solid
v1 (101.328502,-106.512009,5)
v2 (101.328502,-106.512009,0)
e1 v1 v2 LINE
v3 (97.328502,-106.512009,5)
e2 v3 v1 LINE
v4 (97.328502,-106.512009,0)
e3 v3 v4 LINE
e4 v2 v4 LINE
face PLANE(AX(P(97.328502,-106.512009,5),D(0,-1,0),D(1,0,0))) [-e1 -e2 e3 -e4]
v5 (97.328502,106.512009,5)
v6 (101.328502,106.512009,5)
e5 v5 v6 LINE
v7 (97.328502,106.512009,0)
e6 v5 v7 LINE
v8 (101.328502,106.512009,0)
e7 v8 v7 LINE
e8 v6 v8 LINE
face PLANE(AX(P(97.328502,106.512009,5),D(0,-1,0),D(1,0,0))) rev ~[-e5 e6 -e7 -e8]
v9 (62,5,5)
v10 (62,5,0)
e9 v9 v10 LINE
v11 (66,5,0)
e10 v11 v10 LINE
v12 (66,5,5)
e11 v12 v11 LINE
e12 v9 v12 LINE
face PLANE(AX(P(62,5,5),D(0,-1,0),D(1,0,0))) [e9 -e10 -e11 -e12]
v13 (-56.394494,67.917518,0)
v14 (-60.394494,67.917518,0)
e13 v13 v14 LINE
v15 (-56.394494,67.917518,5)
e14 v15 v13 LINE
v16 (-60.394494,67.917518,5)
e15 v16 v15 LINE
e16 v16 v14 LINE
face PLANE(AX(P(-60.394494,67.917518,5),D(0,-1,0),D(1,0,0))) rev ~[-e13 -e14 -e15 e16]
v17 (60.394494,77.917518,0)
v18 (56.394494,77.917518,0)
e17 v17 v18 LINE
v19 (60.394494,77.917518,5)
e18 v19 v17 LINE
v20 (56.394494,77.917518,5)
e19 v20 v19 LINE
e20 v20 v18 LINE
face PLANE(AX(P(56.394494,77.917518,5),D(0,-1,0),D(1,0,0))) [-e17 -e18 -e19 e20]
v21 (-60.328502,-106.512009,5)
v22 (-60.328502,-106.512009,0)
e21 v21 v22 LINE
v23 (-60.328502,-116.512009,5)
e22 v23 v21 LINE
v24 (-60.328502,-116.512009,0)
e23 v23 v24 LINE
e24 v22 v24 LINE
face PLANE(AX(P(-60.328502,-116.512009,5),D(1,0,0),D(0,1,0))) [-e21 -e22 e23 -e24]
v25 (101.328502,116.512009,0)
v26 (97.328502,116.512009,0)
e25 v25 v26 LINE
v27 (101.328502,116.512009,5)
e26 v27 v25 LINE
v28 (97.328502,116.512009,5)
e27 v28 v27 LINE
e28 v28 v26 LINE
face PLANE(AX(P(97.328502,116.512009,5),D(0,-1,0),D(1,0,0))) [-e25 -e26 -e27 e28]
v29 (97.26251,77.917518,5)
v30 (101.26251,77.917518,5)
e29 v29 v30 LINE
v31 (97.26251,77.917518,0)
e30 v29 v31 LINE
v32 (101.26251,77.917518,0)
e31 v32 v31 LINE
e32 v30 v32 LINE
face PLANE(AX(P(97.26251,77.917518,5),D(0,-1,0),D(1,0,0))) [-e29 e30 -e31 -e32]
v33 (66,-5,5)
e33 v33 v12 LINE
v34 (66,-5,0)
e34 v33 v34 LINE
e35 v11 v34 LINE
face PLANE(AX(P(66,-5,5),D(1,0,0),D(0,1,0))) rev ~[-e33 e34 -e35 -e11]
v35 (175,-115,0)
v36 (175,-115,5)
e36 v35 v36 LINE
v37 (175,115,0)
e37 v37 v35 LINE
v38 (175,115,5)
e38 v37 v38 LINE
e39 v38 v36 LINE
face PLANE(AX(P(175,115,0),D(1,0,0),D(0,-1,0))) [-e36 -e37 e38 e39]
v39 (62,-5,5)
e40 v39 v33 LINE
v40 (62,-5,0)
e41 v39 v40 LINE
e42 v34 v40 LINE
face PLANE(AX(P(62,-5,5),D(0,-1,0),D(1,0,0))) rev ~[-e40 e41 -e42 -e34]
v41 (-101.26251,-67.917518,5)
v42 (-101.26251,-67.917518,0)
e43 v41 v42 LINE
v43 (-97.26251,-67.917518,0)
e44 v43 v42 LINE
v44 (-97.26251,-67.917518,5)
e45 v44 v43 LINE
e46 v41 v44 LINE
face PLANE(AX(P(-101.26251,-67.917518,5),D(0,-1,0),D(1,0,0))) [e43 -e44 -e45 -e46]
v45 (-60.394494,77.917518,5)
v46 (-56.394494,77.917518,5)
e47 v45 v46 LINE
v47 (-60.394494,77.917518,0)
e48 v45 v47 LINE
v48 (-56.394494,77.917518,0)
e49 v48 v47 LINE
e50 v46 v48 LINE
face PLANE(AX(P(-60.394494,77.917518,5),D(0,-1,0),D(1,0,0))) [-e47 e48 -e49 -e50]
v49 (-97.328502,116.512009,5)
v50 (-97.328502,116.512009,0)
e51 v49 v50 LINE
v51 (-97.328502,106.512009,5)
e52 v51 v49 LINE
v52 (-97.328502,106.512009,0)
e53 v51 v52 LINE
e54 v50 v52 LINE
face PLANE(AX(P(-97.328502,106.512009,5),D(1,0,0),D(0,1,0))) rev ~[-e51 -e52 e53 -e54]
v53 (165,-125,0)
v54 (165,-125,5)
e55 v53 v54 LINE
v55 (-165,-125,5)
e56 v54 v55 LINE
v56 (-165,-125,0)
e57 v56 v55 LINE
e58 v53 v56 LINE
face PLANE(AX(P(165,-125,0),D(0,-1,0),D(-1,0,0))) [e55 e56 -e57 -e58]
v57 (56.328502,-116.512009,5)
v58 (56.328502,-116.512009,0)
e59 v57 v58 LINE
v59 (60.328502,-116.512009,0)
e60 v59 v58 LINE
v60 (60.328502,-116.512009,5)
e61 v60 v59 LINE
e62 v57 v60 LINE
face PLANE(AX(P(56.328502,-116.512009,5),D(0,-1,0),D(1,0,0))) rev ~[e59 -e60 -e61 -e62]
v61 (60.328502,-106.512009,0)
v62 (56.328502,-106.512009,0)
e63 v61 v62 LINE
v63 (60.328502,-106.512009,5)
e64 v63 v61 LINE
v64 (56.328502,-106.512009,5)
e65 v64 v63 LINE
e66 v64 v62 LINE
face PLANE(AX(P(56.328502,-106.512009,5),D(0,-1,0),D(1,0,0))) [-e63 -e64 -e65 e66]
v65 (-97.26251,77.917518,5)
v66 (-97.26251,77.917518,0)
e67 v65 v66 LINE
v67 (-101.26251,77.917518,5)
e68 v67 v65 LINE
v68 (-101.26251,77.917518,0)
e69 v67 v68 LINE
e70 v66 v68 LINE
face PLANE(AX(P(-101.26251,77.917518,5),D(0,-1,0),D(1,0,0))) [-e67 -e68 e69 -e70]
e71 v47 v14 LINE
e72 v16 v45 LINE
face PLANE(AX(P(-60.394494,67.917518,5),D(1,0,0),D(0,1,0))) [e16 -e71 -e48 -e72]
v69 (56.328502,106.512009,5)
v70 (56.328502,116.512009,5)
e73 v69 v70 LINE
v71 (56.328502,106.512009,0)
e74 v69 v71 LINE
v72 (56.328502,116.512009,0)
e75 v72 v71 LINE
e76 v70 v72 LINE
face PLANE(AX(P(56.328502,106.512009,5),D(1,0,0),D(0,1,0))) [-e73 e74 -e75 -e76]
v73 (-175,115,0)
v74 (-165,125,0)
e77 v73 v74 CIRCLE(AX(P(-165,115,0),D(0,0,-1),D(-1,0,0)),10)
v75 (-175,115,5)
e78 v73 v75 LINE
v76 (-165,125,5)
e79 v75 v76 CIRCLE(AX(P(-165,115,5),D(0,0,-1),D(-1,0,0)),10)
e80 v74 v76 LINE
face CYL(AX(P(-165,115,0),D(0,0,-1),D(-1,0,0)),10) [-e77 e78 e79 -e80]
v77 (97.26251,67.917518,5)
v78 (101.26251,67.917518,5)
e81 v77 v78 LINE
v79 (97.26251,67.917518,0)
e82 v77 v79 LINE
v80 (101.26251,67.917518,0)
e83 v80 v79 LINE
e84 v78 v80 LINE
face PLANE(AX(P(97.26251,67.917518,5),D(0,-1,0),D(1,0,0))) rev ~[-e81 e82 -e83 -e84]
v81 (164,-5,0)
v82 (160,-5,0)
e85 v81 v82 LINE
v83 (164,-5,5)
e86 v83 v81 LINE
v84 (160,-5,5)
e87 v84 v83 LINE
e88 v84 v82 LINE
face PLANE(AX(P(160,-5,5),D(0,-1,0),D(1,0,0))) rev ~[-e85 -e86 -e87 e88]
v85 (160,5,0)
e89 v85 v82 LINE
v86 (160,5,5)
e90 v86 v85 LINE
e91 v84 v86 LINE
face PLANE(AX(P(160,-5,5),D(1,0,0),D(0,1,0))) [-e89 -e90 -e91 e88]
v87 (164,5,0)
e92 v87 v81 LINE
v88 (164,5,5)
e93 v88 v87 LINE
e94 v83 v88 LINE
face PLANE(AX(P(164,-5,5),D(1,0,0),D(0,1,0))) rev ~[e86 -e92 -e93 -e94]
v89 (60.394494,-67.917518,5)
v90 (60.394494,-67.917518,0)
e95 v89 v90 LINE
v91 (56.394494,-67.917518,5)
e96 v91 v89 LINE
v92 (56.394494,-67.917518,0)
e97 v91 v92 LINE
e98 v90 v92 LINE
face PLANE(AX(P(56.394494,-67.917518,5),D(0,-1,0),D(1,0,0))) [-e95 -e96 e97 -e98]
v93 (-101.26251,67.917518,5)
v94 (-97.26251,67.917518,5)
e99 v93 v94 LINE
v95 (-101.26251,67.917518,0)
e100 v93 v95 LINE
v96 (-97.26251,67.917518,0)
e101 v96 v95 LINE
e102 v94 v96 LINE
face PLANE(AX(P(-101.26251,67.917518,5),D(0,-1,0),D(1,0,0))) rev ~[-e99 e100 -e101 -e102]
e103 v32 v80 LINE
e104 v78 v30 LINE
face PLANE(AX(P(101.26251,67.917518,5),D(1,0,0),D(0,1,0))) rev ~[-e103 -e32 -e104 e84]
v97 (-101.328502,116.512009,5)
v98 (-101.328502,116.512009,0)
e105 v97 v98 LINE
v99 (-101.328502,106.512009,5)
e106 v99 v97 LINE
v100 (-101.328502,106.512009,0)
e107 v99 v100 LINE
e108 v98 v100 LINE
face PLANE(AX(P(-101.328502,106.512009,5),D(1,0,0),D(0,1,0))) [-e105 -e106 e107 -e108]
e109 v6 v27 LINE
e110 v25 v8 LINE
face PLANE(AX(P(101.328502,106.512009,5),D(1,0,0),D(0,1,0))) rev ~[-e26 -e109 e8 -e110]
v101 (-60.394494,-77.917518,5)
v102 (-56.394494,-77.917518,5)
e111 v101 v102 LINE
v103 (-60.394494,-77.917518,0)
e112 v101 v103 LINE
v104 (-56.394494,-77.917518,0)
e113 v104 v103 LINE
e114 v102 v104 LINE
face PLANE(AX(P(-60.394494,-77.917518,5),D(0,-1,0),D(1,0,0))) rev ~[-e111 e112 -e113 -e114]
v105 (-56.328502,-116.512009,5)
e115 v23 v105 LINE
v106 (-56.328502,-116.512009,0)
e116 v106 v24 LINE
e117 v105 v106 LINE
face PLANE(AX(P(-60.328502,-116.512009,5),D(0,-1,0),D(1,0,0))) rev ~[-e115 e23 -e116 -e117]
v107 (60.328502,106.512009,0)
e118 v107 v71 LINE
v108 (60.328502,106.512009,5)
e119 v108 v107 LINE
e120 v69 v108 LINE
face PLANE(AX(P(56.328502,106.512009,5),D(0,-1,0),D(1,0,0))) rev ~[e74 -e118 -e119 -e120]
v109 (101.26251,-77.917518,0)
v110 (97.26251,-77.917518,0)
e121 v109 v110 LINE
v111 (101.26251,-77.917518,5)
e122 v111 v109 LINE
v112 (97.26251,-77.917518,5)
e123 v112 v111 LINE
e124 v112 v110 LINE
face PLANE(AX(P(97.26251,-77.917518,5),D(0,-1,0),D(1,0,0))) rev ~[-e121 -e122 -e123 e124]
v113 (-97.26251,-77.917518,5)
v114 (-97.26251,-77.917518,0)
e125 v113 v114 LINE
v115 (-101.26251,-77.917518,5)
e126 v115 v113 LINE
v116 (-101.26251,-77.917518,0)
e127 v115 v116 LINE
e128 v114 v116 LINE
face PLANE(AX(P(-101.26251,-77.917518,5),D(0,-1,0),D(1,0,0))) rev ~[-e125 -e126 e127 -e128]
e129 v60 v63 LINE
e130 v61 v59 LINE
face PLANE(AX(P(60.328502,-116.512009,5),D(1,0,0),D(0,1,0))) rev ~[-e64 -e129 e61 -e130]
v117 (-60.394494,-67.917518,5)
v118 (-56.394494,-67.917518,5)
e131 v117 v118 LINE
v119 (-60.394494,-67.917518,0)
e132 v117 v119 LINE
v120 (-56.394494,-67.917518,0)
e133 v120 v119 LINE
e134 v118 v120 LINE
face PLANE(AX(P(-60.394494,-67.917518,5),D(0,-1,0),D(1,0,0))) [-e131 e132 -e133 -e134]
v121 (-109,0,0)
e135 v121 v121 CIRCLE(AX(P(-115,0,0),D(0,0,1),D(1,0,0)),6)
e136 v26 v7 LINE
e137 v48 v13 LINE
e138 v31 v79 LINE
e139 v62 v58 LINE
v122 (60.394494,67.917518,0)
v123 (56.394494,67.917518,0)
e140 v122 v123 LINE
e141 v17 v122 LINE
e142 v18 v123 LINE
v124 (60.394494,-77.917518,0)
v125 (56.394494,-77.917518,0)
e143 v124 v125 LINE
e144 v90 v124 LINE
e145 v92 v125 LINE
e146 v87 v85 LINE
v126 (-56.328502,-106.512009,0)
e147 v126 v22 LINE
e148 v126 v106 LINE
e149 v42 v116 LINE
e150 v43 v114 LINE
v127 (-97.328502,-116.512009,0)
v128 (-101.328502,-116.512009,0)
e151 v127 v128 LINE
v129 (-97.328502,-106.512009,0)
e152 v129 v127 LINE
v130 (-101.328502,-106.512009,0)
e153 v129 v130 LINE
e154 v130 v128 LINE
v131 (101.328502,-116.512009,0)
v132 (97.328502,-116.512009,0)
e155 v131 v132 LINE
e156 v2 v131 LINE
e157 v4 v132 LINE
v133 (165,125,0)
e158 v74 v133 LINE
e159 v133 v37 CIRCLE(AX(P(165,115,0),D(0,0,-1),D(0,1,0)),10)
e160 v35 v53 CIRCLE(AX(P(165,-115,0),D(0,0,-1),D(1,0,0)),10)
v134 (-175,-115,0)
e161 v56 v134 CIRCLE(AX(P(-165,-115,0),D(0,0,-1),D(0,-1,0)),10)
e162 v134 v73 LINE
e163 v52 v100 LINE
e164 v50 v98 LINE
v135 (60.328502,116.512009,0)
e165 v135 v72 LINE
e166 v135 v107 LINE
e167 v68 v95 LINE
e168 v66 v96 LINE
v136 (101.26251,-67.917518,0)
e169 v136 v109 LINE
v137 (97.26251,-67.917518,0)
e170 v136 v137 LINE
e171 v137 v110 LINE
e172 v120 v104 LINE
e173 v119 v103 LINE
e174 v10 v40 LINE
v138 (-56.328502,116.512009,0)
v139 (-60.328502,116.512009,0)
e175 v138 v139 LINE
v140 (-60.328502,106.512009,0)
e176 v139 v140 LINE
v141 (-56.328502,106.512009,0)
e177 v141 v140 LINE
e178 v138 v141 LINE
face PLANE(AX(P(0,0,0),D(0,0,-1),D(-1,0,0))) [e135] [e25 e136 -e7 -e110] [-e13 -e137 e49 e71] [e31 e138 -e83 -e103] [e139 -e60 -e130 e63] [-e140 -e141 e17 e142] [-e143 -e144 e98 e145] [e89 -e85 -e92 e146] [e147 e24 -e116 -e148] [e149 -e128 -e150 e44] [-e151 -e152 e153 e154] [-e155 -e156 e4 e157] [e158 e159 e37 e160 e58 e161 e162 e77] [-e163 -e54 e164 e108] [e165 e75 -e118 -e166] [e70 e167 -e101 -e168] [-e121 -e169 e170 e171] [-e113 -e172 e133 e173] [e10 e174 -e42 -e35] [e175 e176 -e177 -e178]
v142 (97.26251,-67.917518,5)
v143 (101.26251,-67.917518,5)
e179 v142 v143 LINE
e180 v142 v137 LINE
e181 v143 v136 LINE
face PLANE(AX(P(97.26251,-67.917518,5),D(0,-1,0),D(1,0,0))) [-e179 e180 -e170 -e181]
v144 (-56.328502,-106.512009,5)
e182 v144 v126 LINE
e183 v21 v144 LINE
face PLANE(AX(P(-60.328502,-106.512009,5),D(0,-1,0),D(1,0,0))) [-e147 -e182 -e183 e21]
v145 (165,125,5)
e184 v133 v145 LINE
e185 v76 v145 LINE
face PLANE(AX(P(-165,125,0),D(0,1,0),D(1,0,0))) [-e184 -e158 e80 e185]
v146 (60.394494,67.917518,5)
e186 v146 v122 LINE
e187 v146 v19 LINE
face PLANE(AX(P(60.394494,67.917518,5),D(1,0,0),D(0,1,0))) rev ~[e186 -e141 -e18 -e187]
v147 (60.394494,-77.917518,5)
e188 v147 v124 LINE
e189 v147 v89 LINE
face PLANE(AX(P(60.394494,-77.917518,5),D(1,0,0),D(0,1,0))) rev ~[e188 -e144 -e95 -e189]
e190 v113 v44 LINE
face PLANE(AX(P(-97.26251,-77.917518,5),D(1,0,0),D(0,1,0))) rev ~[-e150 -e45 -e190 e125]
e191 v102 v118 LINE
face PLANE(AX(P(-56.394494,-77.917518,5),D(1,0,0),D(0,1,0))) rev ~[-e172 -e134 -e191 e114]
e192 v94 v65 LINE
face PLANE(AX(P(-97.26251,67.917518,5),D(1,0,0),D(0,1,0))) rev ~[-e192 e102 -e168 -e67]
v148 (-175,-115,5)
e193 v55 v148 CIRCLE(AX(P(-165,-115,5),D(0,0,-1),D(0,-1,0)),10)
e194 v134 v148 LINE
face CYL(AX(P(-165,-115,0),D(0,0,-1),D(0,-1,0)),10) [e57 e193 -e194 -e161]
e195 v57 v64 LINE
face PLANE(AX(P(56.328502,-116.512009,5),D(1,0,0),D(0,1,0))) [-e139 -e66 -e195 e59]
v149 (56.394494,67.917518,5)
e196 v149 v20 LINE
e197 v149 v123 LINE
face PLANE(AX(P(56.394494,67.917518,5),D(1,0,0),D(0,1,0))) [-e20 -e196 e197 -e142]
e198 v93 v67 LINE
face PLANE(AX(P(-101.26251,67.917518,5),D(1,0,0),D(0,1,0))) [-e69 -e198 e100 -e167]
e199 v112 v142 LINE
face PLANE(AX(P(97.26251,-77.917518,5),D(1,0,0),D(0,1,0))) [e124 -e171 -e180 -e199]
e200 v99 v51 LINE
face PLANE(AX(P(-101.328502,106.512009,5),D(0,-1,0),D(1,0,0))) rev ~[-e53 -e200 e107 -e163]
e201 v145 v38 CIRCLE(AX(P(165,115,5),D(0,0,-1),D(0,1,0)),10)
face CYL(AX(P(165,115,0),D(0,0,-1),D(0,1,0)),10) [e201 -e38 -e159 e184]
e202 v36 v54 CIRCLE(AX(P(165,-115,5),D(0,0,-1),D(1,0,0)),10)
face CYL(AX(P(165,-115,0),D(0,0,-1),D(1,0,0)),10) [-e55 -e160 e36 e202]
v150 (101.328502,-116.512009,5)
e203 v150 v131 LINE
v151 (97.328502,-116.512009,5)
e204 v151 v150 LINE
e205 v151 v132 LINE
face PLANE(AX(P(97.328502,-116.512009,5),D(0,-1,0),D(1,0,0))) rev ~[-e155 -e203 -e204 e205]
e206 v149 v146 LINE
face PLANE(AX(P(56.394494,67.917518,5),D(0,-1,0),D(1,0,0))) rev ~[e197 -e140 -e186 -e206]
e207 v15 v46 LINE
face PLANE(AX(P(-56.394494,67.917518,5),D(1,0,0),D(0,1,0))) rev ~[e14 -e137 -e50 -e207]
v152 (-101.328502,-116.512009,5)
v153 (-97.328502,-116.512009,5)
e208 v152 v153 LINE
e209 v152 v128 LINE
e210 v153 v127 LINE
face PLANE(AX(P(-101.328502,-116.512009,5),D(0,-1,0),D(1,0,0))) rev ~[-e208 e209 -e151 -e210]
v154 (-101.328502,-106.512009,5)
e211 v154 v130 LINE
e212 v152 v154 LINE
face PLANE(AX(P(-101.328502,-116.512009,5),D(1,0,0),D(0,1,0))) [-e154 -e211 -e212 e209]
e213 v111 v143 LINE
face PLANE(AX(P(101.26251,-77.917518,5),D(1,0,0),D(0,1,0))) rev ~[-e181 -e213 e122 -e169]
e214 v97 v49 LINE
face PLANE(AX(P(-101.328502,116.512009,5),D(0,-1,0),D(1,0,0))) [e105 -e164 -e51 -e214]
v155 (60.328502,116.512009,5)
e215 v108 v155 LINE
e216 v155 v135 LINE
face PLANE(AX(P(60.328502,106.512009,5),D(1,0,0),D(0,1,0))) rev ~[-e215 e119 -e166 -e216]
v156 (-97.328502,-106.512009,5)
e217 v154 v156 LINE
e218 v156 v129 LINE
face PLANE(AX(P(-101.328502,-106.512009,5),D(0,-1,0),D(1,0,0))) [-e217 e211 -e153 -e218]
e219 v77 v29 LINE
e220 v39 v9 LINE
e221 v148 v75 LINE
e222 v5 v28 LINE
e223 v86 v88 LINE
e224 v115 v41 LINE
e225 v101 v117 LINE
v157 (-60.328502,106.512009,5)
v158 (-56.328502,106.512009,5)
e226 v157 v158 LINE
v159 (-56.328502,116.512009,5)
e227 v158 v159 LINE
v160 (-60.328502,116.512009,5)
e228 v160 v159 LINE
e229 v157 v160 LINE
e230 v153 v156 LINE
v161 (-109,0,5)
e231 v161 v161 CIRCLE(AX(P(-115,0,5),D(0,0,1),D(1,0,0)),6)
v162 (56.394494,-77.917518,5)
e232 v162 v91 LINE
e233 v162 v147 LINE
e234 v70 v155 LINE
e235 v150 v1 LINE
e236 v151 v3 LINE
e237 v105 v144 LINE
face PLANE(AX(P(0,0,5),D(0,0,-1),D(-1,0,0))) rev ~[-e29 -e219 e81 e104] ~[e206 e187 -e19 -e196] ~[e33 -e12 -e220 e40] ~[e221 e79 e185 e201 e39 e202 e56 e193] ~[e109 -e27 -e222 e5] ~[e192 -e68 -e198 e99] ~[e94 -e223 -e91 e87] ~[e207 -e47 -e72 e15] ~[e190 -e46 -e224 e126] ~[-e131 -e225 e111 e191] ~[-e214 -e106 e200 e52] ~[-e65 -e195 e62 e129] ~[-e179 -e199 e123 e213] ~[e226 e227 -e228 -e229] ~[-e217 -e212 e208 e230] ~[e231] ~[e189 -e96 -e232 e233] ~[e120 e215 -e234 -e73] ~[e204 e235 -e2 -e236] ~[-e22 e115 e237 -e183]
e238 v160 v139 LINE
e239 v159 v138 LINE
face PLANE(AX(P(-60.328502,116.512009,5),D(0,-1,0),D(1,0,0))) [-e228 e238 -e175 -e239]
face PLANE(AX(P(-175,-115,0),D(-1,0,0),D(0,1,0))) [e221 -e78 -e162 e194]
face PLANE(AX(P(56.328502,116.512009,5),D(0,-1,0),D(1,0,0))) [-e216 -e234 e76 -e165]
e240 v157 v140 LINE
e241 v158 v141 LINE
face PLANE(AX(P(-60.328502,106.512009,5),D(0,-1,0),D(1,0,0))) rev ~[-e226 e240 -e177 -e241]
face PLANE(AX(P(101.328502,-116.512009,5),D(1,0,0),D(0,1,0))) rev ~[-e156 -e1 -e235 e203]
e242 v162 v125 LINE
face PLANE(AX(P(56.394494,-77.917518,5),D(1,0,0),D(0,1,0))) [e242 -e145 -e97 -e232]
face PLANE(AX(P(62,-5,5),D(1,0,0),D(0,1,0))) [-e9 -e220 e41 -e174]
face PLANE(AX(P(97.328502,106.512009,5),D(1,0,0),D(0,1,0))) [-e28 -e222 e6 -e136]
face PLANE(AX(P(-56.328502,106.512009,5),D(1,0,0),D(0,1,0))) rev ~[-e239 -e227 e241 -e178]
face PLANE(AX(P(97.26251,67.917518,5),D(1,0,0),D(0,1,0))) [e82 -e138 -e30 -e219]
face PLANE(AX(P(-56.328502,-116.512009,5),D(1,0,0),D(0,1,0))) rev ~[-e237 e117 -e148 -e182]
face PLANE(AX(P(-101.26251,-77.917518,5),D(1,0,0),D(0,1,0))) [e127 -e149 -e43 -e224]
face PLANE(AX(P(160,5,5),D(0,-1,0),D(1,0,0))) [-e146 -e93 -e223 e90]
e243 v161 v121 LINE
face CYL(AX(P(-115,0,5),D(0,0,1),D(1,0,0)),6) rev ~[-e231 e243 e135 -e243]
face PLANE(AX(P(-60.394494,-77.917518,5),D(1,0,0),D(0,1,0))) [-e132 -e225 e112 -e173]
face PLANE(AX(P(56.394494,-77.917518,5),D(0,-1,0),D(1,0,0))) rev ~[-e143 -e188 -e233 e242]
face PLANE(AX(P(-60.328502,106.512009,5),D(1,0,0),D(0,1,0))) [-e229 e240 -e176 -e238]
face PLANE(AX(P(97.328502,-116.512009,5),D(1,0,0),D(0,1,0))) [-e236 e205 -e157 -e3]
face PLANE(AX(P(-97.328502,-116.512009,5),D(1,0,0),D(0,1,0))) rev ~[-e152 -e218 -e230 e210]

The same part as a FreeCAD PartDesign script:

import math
import FreeCAD as App
import Part
import Sketcher

doc = App.newDocument("Part")
body = doc.addObject("PartDesign::Body", "Body")

# Sketch on XY plane
sketch1 = body.newObject("Sketcher::SketchObject", "Sketch")
sketch1.AttachmentSupport = (doc.getObject("XY_Plane"), [""])
sketch1.MapMode = "FlatFace"
sketch1.addGeometry(Part.LineSegment(App.Vector(165, 125, 0), App.Vector(-165, 125, 0)), False)
sketch1.addGeometry(Part.ArcOfCircle(Part.Circle(App.Vector(-165, 115, 0), App.Vector(0, 0, 1), 10), math.radians(90), math.radians(180)), False)
sketch1.addGeometry(Part.LineSegment(App.Vector(-175, 115, 0), App.Vector(-175, -115, 0)), False)
sketch1.addGeometry(Part.ArcOfCircle(Part.Circle(App.Vector(-165, -115, 0), App.Vector(0, 0, 1), 10), math.radians(180), math.radians(270)), False)
sketch1.addGeometry(Part.LineSegment(App.Vector(-165, -125, 0), App.Vector(165, -125, 0)), False)
sketch1.addGeometry(Part.ArcOfCircle(Part.Circle(App.Vector(165, -115, 0), App.Vector(0, 0, 1), 10), math.radians(-90), math.radians(0)), False)
sketch1.addGeometry(Part.LineSegment(App.Vector(175, -115, 0), App.Vector(175, 115, 0)), False)
sketch1.addGeometry(Part.ArcOfCircle(Part.Circle(App.Vector(165, 115, 0), App.Vector(0, 0, 1), 10), math.radians(0), math.radians(90)), False)
sketch1.addConstraint(Sketcher.Constraint("Tangent", 0, 2, 1, 1))
sketch1.addConstraint(Sketcher.Constraint("Tangent", 1, 2, 2, 1))
sketch1.addConstraint(Sketcher.Constraint("Tangent", 2, 2, 3, 1))
sketch1.addConstraint(Sketcher.Constraint("Tangent", 3, 2, 4, 1))
sketch1.addConstraint(Sketcher.Constraint("Tangent", 4, 2, 5, 1))
sketch1.addConstraint(Sketcher.Constraint("Tangent", 5, 2, 6, 1))
sketch1.addConstraint(Sketcher.Constraint("Tangent", 6, 2, 7, 1))
sketch1.addConstraint(Sketcher.Constraint("Tangent", 7, 2, 0, 1))
sketch1.addConstraint(Sketcher.Constraint("Horizontal", 0))
sketch1.addConstraint(Sketcher.Constraint("Vertical", 2))
sketch1.addConstraint(Sketcher.Constraint("Horizontal", 4))
sketch1.addConstraint(Sketcher.Constraint("Vertical", 6))
sketch1.addConstraint(Sketcher.Constraint("Equal", 1, 3))
sketch1.addConstraint(Sketcher.Constraint("Equal", 3, 5))
sketch1.addConstraint(Sketcher.Constraint("Equal", 5, 7))
sketch1.addConstraint(Sketcher.Constraint("Symmetric", 1, 3, 5, 3, -1, 1))
sketch1.addConstraint(Sketcher.Constraint("Radius", 1, 10.0))
sketch1.addConstraint(Sketcher.Constraint("DistanceX", 0, 2, 0, 1, 330.0))
sketch1.addConstraint(Sketcher.Constraint("DistanceY", 2, 2, 2, 1, 230.0))
pad1 = body.newObject("PartDesign::Pad", "Pad")
pad1.Profile = sketch1
pad1.Length = 5

# Sketch on XY plane
sketch2 = body.newObject("Sketcher::SketchObject", "Sketch001")
sketch2.AttachmentSupport = (doc.getObject("XY_Plane"), [""])
sketch2.MapMode = "FlatFace"
sketch2.AttachmentOffset = App.Placement(App.Vector(0, 0, 5), App.Rotation())
sketch2.addGeometry(Part.LineSegment(App.Vector(97.328502, 116.512009, 0), App.Vector(97.328502, 106.512009, 0)), False)
sketch2.addGeometry(Part.LineSegment(App.Vector(97.328502, 106.512009, 0), App.Vector(101.328502, 106.512009, 0)), False)
sketch2.addGeometry(Part.LineSegment(App.Vector(101.328502, 106.512009, 0), App.Vector(101.328502, 116.512009, 0)), False)
sketch2.addGeometry(Part.LineSegment(App.Vector(101.328502, 116.512009, 0), App.Vector(97.328502, 116.512009, 0)), False)
sketch2.addGeometry(Part.LineSegment(App.Vector(97.26251, 77.917518, 0), App.Vector(97.26251, 67.917518, 0)), False)
sketch2.addGeometry(Part.LineSegment(App.Vector(97.26251, 67.917518, 0), App.Vector(101.26251, 67.917518, 0)), False)
sketch2.addGeometry(Part.LineSegment(App.Vector(101.26251, 67.917518, 0), App.Vector(101.26251, 77.917518, 0)), False)
sketch2.addGeometry(Part.LineSegment(App.Vector(101.26251, 77.917518, 0), App.Vector(97.26251, 77.917518, 0)), False)
sketch2.addGeometry(Part.LineSegment(App.Vector(56.394494, 77.917518, 0), App.Vector(56.394494, 67.917518, 0)), False)
sketch2.addGeometry(Part.LineSegment(App.Vector(56.394494, 67.917518, 0), App.Vector(60.394494, 67.917518, 0)), False)
sketch2.addGeometry(Part.LineSegment(App.Vector(60.394494, 67.917518, 0), App.Vector(60.394494, 77.917518, 0)), False)
sketch2.addGeometry(Part.LineSegment(App.Vector(60.394494, 77.917518, 0), App.Vector(56.394494, 77.917518, 0)), False)
sketch2.addGeometry(Part.LineSegment(App.Vector(56.328502, 116.512009, 0), App.Vector(56.328502, 106.512009, 0)), False)
sketch2.addGeometry(Part.LineSegment(App.Vector(56.328502, 106.512009, 0), App.Vector(60.328502, 106.512009, 0)), False)
sketch2.addGeometry(Part.LineSegment(App.Vector(60.328502, 106.512009, 0), App.Vector(60.328502, 116.512009, 0)), False)
sketch2.addGeometry(Part.LineSegment(App.Vector(60.328502, 116.512009, 0), App.Vector(56.328502, 116.512009, 0)), False)
sketch2.addGeometry(Part.LineSegment(App.Vector(56.328502, -106.512009, 0), App.Vector(56.328502, -116.512009, 0)), False)
sketch2.addGeometry(Part.LineSegment(App.Vector(56.328502, -116.512009, 0), App.Vector(60.328502, -116.512009, 0)), False)
sketch2.addGeometry(Part.LineSegment(App.Vector(60.328502, -116.512009, 0), App.Vector(60.328502, -106.512009, 0)), False)
sketch2.addGeometry(Part.LineSegment(App.Vector(60.328502, -106.512009, 0), App.Vector(56.328502, -106.512009, 0)), False)
sketch2.addGeometry(Part.LineSegment(App.Vector(56.394494, -67.917518, 0), App.Vector(56.394494, -77.917518, 0)), False)
sketch2.addGeometry(Part.LineSegment(App.Vector(56.394494, -77.917518, 0), App.Vector(60.394494, -77.917518, 0)), False)
sketch2.addGeometry(Part.LineSegment(App.Vector(60.394494, -77.917518, 0), App.Vector(60.394494, -67.917518, 0)), False)
sketch2.addGeometry(Part.LineSegment(App.Vector(60.394494, -67.917518, 0), App.Vector(56.394494, -67.917518, 0)), False)
sketch2.addGeometry(Part.LineSegment(App.Vector(97.26251, -67.917518, 0), App.Vector(97.26251, -77.917518, 0)), False)
sketch2.addGeometry(Part.LineSegment(App.Vector(97.26251, -77.917518, 0), App.Vector(101.26251, -77.917518, 0)), False)
sketch2.addGeometry(Part.LineSegment(App.Vector(101.26251, -77.917518, 0), App.Vector(101.26251, -67.917518, 0)), False)
sketch2.addGeometry(Part.LineSegment(App.Vector(101.26251, -67.917518, 0), App.Vector(97.26251, -67.917518, 0)), False)
sketch2.addGeometry(Part.LineSegment(App.Vector(97.328502, -106.512009, 0), App.Vector(97.328502, -116.512009, 0)), False)
sketch2.addGeometry(Part.LineSegment(App.Vector(97.328502, -116.512009, 0), App.Vector(101.328502, -116.512009, 0)), False)
sketch2.addGeometry(Part.LineSegment(App.Vector(101.328502, -116.512009, 0), App.Vector(101.328502, -106.512009, 0)), False)
sketch2.addGeometry(Part.LineSegment(App.Vector(101.328502, -106.512009, 0), App.Vector(97.328502, -106.512009, 0)), False)
sketch2.addGeometry(Part.LineSegment(App.Vector(-101.328502, -106.512009, 0), App.Vector(-101.328502, -116.512009, 0)), False)
sketch2.addGeometry(Part.LineSegment(App.Vector(-101.328502, -116.512009, 0), App.Vector(-97.328502, -116.512009, 0)), False)
sketch2.addGeometry(Part.LineSegment(App.Vector(-97.328502, -116.512009, 0), App.Vector(-97.328502, -106.512009, 0)), False)
sketch2.addGeometry(Part.LineSegment(App.Vector(-97.328502, -106.512009, 0), App.Vector(-101.328502, -106.512009, 0)), False)
sketch2.addGeometry(Part.LineSegment(App.Vector(-101.26251, -67.917518, 0), App.Vector(-101.26251, -77.917518, 0)), False)
sketch2.addGeometry(Part.LineSegment(App.Vector(-101.26251, -77.917518, 0), App.Vector(-97.26251, -77.917518, 0)), False)
sketch2.addGeometry(Part.LineSegment(App.Vector(-97.26251, -77.917518, 0), App.Vector(-97.26251, -67.917518, 0)), False)
sketch2.addGeometry(Part.LineSegment(App.Vector(-97.26251, -67.917518, 0), App.Vector(-101.26251, -67.917518, 0)), False)
sketch2.addGeometry(Part.LineSegment(App.Vector(-60.394494, -67.917518, 0), App.Vector(-60.394494, -77.917518, 0)), False)
sketch2.addGeometry(Part.LineSegment(App.Vector(-60.394494, -77.917518, 0), App.Vector(-56.394494, -77.917518, 0)), False)
sketch2.addGeometry(Part.LineSegment(App.Vector(-56.394494, -77.917518, 0), App.Vector(-56.394494, -67.917518, 0)), False)
sketch2.addGeometry(Part.LineSegment(App.Vector(-56.394494, -67.917518, 0), App.Vector(-60.394494, -67.917518, 0)), False)
sketch2.addGeometry(Part.LineSegment(App.Vector(-60.328502, -106.512009, 0), App.Vector(-60.328502, -116.512009, 0)), False)
sketch2.addGeometry(Part.LineSegment(App.Vector(-60.328502, -116.512009, 0), App.Vector(-56.328502, -116.512009, 0)), False)
sketch2.addGeometry(Part.LineSegment(App.Vector(-56.328502, -116.512009, 0), App.Vector(-56.328502, -106.512009, 0)), False)
sketch2.addGeometry(Part.LineSegment(App.Vector(-56.328502, -106.512009, 0), App.Vector(-60.328502, -106.512009, 0)), False)
sketch2.addGeometry(Part.LineSegment(App.Vector(-60.328502, 116.512009, 0), App.Vector(-60.328502, 106.512009, 0)), False)
sketch2.addGeometry(Part.LineSegment(App.Vector(-60.328502, 106.512009, 0), App.Vector(-56.328502, 106.512009, 0)), False)
sketch2.addGeometry(Part.LineSegment(App.Vector(-56.328502, 106.512009, 0), App.Vector(-56.328502, 116.512009, 0)), False)
sketch2.addGeometry(Part.LineSegment(App.Vector(-56.328502, 116.512009, 0), App.Vector(-60.328502, 116.512009, 0)), False)
sketch2.addGeometry(Part.LineSegment(App.Vector(-60.394494, 77.917518, 0), App.Vector(-60.394494, 67.917518, 0)), False)
sketch2.addGeometry(Part.LineSegment(App.Vector(-60.394494, 67.917518, 0), App.Vector(-56.394494, 67.917518, 0)), False)
sketch2.addGeometry(Part.LineSegment(App.Vector(-56.394494, 67.917518, 0), App.Vector(-56.394494, 77.917518, 0)), False)
sketch2.addGeometry(Part.LineSegment(App.Vector(-56.394494, 77.917518, 0), App.Vector(-60.394494, 77.917518, 0)), False)
sketch2.addGeometry(Part.LineSegment(App.Vector(-101.26251, 77.917518, 0), App.Vector(-101.26251, 67.917518, 0)), False)
sketch2.addGeometry(Part.LineSegment(App.Vector(-101.26251, 67.917518, 0), App.Vector(-97.26251, 67.917518, 0)), False)
sketch2.addGeometry(Part.LineSegment(App.Vector(-97.26251, 67.917518, 0), App.Vector(-97.26251, 77.917518, 0)), False)
sketch2.addGeometry(Part.LineSegment(App.Vector(-97.26251, 77.917518, 0), App.Vector(-101.26251, 77.917518, 0)), False)
sketch2.addGeometry(Part.LineSegment(App.Vector(-101.328502, 116.512009, 0), App.Vector(-101.328502, 106.512009, 0)), False)
sketch2.addGeometry(Part.LineSegment(App.Vector(-101.328502, 106.512009, 0), App.Vector(-97.328502, 106.512009, 0)), False)
sketch2.addGeometry(Part.LineSegment(App.Vector(-97.328502, 106.512009, 0), App.Vector(-97.328502, 116.512009, 0)), False)
sketch2.addGeometry(Part.LineSegment(App.Vector(-97.328502, 116.512009, 0), App.Vector(-101.328502, 116.512009, 0)), False)
sketch2.addConstraint(Sketcher.Constraint("Coincident", 0, 2, 1, 1))
sketch2.addConstraint(Sketcher.Constraint("Coincident", 1, 2, 2, 1))
sketch2.addConstraint(Sketcher.Constraint("Coincident", 2, 2, 3, 1))
sketch2.addConstraint(Sketcher.Constraint("Coincident", 3, 2, 0, 1))
sketch2.addConstraint(Sketcher.Constraint("Coincident", 4, 2, 5, 1))
sketch2.addConstraint(Sketcher.Constraint("Coincident", 5, 2, 6, 1))
sketch2.addConstraint(Sketcher.Constraint("Coincident", 6, 2, 7, 1))
sketch2.addConstraint(Sketcher.Constraint("Coincident", 7, 2, 4, 1))
sketch2.addConstraint(Sketcher.Constraint("Coincident", 8, 2, 9, 1))
sketch2.addConstraint(Sketcher.Constraint("Coincident", 9, 2, 10, 1))
sketch2.addConstraint(Sketcher.Constraint("Coincident", 10, 2, 11, 1))
sketch2.addConstraint(Sketcher.Constraint("Coincident", 11, 2, 8, 1))
sketch2.addConstraint(Sketcher.Constraint("Coincident", 12, 2, 13, 1))
sketch2.addConstraint(Sketcher.Constraint("Coincident", 13, 2, 14, 1))
sketch2.addConstraint(Sketcher.Constraint("Coincident", 14, 2, 15, 1))
sketch2.addConstraint(Sketcher.Constraint("Coincident", 15, 2, 12, 1))
sketch2.addConstraint(Sketcher.Constraint("Coincident", 16, 2, 17, 1))
sketch2.addConstraint(Sketcher.Constraint("Coincident", 17, 2, 18, 1))
sketch2.addConstraint(Sketcher.Constraint("Coincident", 18, 2, 19, 1))
sketch2.addConstraint(Sketcher.Constraint("Coincident", 19, 2, 16, 1))
sketch2.addConstraint(Sketcher.Constraint("Coincident", 20, 2, 21, 1))
sketch2.addConstraint(Sketcher.Constraint("Coincident", 21, 2, 22, 1))
sketch2.addConstraint(Sketcher.Constraint("Coincident", 22, 2, 23, 1))
sketch2.addConstraint(Sketcher.Constraint("Coincident", 23, 2, 20, 1))
sketch2.addConstraint(Sketcher.Constraint("Coincident", 24, 2, 25, 1))
sketch2.addConstraint(Sketcher.Constraint("Coincident", 25, 2, 26, 1))
sketch2.addConstraint(Sketcher.Constraint("Coincident", 26, 2, 27, 1))
sketch2.addConstraint(Sketcher.Constraint("Coincident", 27, 2, 24, 1))
sketch2.addConstraint(Sketcher.Constraint("Coincident", 28, 2, 29, 1))
sketch2.addConstraint(Sketcher.Constraint("Coincident", 29, 2, 30, 1))
sketch2.addConstraint(Sketcher.Constraint("Coincident", 30, 2, 31, 1))
sketch2.addConstraint(Sketcher.Constraint("Coincident", 31, 2, 28, 1))
sketch2.addConstraint(Sketcher.Constraint("Coincident", 32, 2, 33, 1))
sketch2.addConstraint(Sketcher.Constraint("Coincident", 33, 2, 34, 1))
sketch2.addConstraint(Sketcher.Constraint("Coincident", 34, 2, 35, 1))
sketch2.addConstraint(Sketcher.Constraint("Coincident", 35, 2, 32, 1))
sketch2.addConstraint(Sketcher.Constraint("Coincident", 36, 2, 37, 1))
sketch2.addConstraint(Sketcher.Constraint("Coincident", 37, 2, 38, 1))
sketch2.addConstraint(Sketcher.Constraint("Coincident", 38, 2, 39, 1))
sketch2.addConstraint(Sketcher.Constraint("Coincident", 39, 2, 36, 1))
sketch2.addConstraint(Sketcher.Constraint("Coincident", 40, 2, 41, 1))
sketch2.addConstraint(Sketcher.Constraint("Coincident", 41, 2, 42, 1))
sketch2.addConstraint(Sketcher.Constraint("Coincident", 42, 2, 43, 1))
sketch2.addConstraint(Sketcher.Constraint("Coincident", 43, 2, 40, 1))
sketch2.addConstraint(Sketcher.Constraint("Coincident", 44, 2, 45, 1))
sketch2.addConstraint(Sketcher.Constraint("Coincident", 45, 2, 46, 1))
sketch2.addConstraint(Sketcher.Constraint("Coincident", 46, 2, 47, 1))
sketch2.addConstraint(Sketcher.Constraint("Coincident", 47, 2, 44, 1))
sketch2.addConstraint(Sketcher.Constraint("Coincident", 48, 2, 49, 1))
sketch2.addConstraint(Sketcher.Constraint("Coincident", 49, 2, 50, 1))
sketch2.addConstraint(Sketcher.Constraint("Coincident", 50, 2, 51, 1))
sketch2.addConstraint(Sketcher.Constraint("Coincident", 51, 2, 48, 1))
sketch2.addConstraint(Sketcher.Constraint("Coincident", 52, 2, 53, 1))
sketch2.addConstraint(Sketcher.Constraint("Coincident", 53, 2, 54, 1))
sketch2.addConstraint(Sketcher.Constraint("Coincident", 54, 2, 55, 1))
sketch2.addConstraint(Sketcher.Constraint("Coincident", 55, 2, 52, 1))
sketch2.addConstraint(Sketcher.Constraint("Coincident", 56, 2, 57, 1))
sketch2.addConstraint(Sketcher.Constraint("Coincident", 57, 2, 58, 1))
sketch2.addConstraint(Sketcher.Constraint("Coincident", 58, 2, 59, 1))
sketch2.addConstraint(Sketcher.Constraint("Coincident", 59, 2, 56, 1))
sketch2.addConstraint(Sketcher.Constraint("Coincident", 60, 2, 61, 1))
sketch2.addConstraint(Sketcher.Constraint("Coincident", 61, 2, 62, 1))
sketch2.addConstraint(Sketcher.Constraint("Coincident", 62, 2, 63, 1))
sketch2.addConstraint(Sketcher.Constraint("Coincident", 63, 2, 60, 1))
sketch2.addConstraint(Sketcher.Constraint("Vertical", 0))
sketch2.addConstraint(Sketcher.Constraint("Horizontal", 1))
sketch2.addConstraint(Sketcher.Constraint("Vertical", 2))
sketch2.addConstraint(Sketcher.Constraint("Horizontal", 3))
sketch2.addConstraint(Sketcher.Constraint("Vertical", 4))
sketch2.addConstraint(Sketcher.Constraint("Horizontal", 5))
sketch2.addConstraint(Sketcher.Constraint("Vertical", 6))
sketch2.addConstraint(Sketcher.Constraint("Horizontal", 7))
sketch2.addConstraint(Sketcher.Constraint("Vertical", 8))
sketch2.addConstraint(Sketcher.Constraint("Horizontal", 9))
sketch2.addConstraint(Sketcher.Constraint("Vertical", 10))
sketch2.addConstraint(Sketcher.Constraint("Horizontal", 11))
sketch2.addConstraint(Sketcher.Constraint("Vertical", 12))
sketch2.addConstraint(Sketcher.Constraint("Horizontal", 13))
sketch2.addConstraint(Sketcher.Constraint("Vertical", 14))
sketch2.addConstraint(Sketcher.Constraint("Horizontal", 15))
sketch2.addConstraint(Sketcher.Constraint("Vertical", 16))
sketch2.addConstraint(Sketcher.Constraint("Horizontal", 17))
sketch2.addConstraint(Sketcher.Constraint("Vertical", 18))
sketch2.addConstraint(Sketcher.Constraint("Horizontal", 19))
sketch2.addConstraint(Sketcher.Constraint("Vertical", 20))
sketch2.addConstraint(Sketcher.Constraint("Horizontal", 21))
sketch2.addConstraint(Sketcher.Constraint("Vertical", 22))
sketch2.addConstraint(Sketcher.Constraint("Horizontal", 23))
sketch2.addConstraint(Sketcher.Constraint("Vertical", 24))
sketch2.addConstraint(Sketcher.Constraint("Horizontal", 25))
sketch2.addConstraint(Sketcher.Constraint("Vertical", 26))
sketch2.addConstraint(Sketcher.Constraint("Horizontal", 27))
sketch2.addConstraint(Sketcher.Constraint("Vertical", 28))
sketch2.addConstraint(Sketcher.Constraint("Horizontal", 29))
sketch2.addConstraint(Sketcher.Constraint("Vertical", 30))
sketch2.addConstraint(Sketcher.Constraint("Horizontal", 31))
sketch2.addConstraint(Sketcher.Constraint("Vertical", 32))
sketch2.addConstraint(Sketcher.Constraint("Horizontal", 33))
sketch2.addConstraint(Sketcher.Constraint("Vertical", 34))
sketch2.addConstraint(Sketcher.Constraint("Horizontal", 35))
sketch2.addConstraint(Sketcher.Constraint("Vertical", 36))
sketch2.addConstraint(Sketcher.Constraint("Horizontal", 37))
sketch2.addConstraint(Sketcher.Constraint("Vertical", 38))
sketch2.addConstraint(Sketcher.Constraint("Horizontal", 39))
sketch2.addConstraint(Sketcher.Constraint("Vertical", 40))
sketch2.addConstraint(Sketcher.Constraint("Horizontal", 41))
sketch2.addConstraint(Sketcher.Constraint("Vertical", 42))
sketch2.addConstraint(Sketcher.Constraint("Horizontal", 43))
sketch2.addConstraint(Sketcher.Constraint("Vertical", 44))
sketch2.addConstraint(Sketcher.Constraint("Horizontal", 45))
sketch2.addConstraint(Sketcher.Constraint("Vertical", 46))
sketch2.addConstraint(Sketcher.Constraint("Horizontal", 47))
sketch2.addConstraint(Sketcher.Constraint("Vertical", 48))
sketch2.addConstraint(Sketcher.Constraint("Horizontal", 49))
sketch2.addConstraint(Sketcher.Constraint("Vertical", 50))
sketch2.addConstraint(Sketcher.Constraint("Horizontal", 51))
sketch2.addConstraint(Sketcher.Constraint("Vertical", 52))
sketch2.addConstraint(Sketcher.Constraint("Horizontal", 53))
sketch2.addConstraint(Sketcher.Constraint("Vertical", 54))
sketch2.addConstraint(Sketcher.Constraint("Horizontal", 55))
sketch2.addConstraint(Sketcher.Constraint("Vertical", 56))
sketch2.addConstraint(Sketcher.Constraint("Horizontal", 57))
sketch2.addConstraint(Sketcher.Constraint("Vertical", 58))
sketch2.addConstraint(Sketcher.Constraint("Horizontal", 59))
sketch2.addConstraint(Sketcher.Constraint("Vertical", 60))
sketch2.addConstraint(Sketcher.Constraint("Horizontal", 61))
sketch2.addConstraint(Sketcher.Constraint("Vertical", 62))
sketch2.addConstraint(Sketcher.Constraint("Horizontal", 63))
sketch2.addConstraint(Sketcher.Constraint("Symmetric", 2, 2, 32, 2, -1, 1))
sketch2.addConstraint(Sketcher.Constraint("Symmetric", 0, 2, 34, 2, -1, 1))
sketch2.addConstraint(Sketcher.Constraint("Symmetric", 6, 2, 36, 2, -1, 1))
sketch2.addConstraint(Sketcher.Constraint("Symmetric", 4, 2, 38, 2, -1, 1))
sketch2.addConstraint(Sketcher.Constraint("Symmetric", 10, 2, 40, 2, -1, 1))
sketch2.addConstraint(Sketcher.Constraint("Symmetric", 8, 2, 42, 2, -1, 1))
sketch2.addConstraint(Sketcher.Constraint("Symmetric", 14, 2, 44, 2, -1, 1))
sketch2.addConstraint(Sketcher.Constraint("Symmetric", 12, 2, 46, 2, -1, 1))
sketch2.addConstraint(Sketcher.Constraint("Symmetric", 18, 2, 48, 2, -1, 1))
sketch2.addConstraint(Sketcher.Constraint("Symmetric", 16, 2, 50, 2, -1, 1))
sketch2.addConstraint(Sketcher.Constraint("Symmetric", 22, 2, 52, 2, -1, 1))
sketch2.addConstraint(Sketcher.Constraint("Symmetric", 20, 2, 54, 2, -1, 1))
sketch2.addConstraint(Sketcher.Constraint("Symmetric", 26, 2, 56, 2, -1, 1))
sketch2.addConstraint(Sketcher.Constraint("Symmetric", 24, 2, 58, 2, -1, 1))
sketch2.addConstraint(Sketcher.Constraint("Symmetric", 30, 2, 60, 2, -1, 1))
sketch2.addConstraint(Sketcher.Constraint("Symmetric", 28, 2, 62, 2, -1, 1))
sketch2.addConstraint(Sketcher.Constraint("Symmetric", 29, 2, 32, 2, -2))
sketch2.addConstraint(Sketcher.Constraint("Symmetric", 31, 2, 34, 2, -2))
sketch2.addConstraint(Sketcher.Constraint("Symmetric", 25, 2, 36, 2, -2))
sketch2.addConstraint(Sketcher.Constraint("Symmetric", 27, 2, 38, 2, -2))
sketch2.addConstraint(Sketcher.Constraint("Symmetric", 21, 2, 40, 2, -2))
sketch2.addConstraint(Sketcher.Constraint("Symmetric", 23, 2, 42, 2, -2))
sketch2.addConstraint(Sketcher.Constraint("Symmetric", 17, 2, 44, 2, -2))
sketch2.addConstraint(Sketcher.Constraint("Symmetric", 19, 2, 46, 2, -2))
sketch2.addConstraint(Sketcher.Constraint("Horizontal", 5, 2, 8, 2))
sketch2.addConstraint(Sketcher.Constraint("Horizontal", 7, 2, 10, 2))
sketch2.addConstraint(Sketcher.Constraint("Horizontal", 1, 2, 12, 2))
sketch2.addConstraint(Sketcher.Constraint("Horizontal", 3, 2, 14, 2))
sketch2.addConstraint(Sketcher.Constraint("Equal", 3, 5))
sketch2.addConstraint(Sketcher.Constraint("Equal", 7, 9))
sketch2.addConstraint(Sketcher.Constraint("Equal", 11, 13))
sketch2.addConstraint(Sketcher.Constraint("Equal", 2, 4))
sketch2.addConstraint(Sketcher.Constraint("DistanceX", 1, 1, 1, 2, 4.0))
sketch2.addConstraint(Sketcher.Constraint("DistanceY", 0, 2, 0, 1, 10.0))
sketch2.addConstraint(Sketcher.Constraint("DistanceY", -1, 1, 0, 2, 106.512009))
sketch2.addConstraint(Sketcher.Constraint("DistanceX", -1, 1, 4, 2, 97.26251))
sketch2.addConstraint(Sketcher.Constraint("DistanceX", -1, 1, 0, 2, 97.328502))
sketch2.addConstraint(Sketcher.Constraint("DistanceY", -1, 1, 4, 2, 67.917518))
sketch2.addConstraint(Sketcher.Constraint("DistanceX", -1, 1, 8, 2, 56.394494))
sketch2.addConstraint(Sketcher.Constraint("DistanceX", -1, 1, 12, 2, 56.328502))
pocket1 = body.newObject("PartDesign::Pocket", "Pocket")
pocket1.Profile = sketch2
pocket1.Length = 10

# Sketch on XY plane
sketch3 = body.newObject("Sketcher::SketchObject", "Sketch002")
sketch3.AttachmentSupport = (doc.getObject("XY_Plane"), [""])
sketch3.MapMode = "FlatFace"
sketch3.AttachmentOffset = App.Placement(App.Vector(0, 0, 5), App.Rotation())
sketch3.addGeometry(Part.Circle(App.Vector(-115, 0, 0), App.Vector(0, 0, 1), 6), False)
sketch3.addGeometry(Part.LineSegment(App.Vector(160, 5, 0), App.Vector(160, -5, 0)), False)
sketch3.addGeometry(Part.LineSegment(App.Vector(160, -5, 0), App.Vector(164, -5, 0)), False)
sketch3.addGeometry(Part.LineSegment(App.Vector(164, -5, 0), App.Vector(164, 5, 0)), False)
sketch3.addGeometry(Part.LineSegment(App.Vector(164, 5, 0), App.Vector(160, 5, 0)), False)
sketch3.addGeometry(Part.LineSegment(App.Vector(62, 5, 0), App.Vector(62, -5, 0)), False)
sketch3.addGeometry(Part.LineSegment(App.Vector(62, -5, 0), App.Vector(66, -5, 0)), False)
sketch3.addGeometry(Part.LineSegment(App.Vector(66, -5, 0), App.Vector(66, 5, 0)), False)
sketch3.addGeometry(Part.LineSegment(App.Vector(66, 5, 0), App.Vector(62, 5, 0)), False)
sketch3.addConstraint(Sketcher.Constraint("Coincident", 1, 2, 2, 1))
sketch3.addConstraint(Sketcher.Constraint("Coincident", 2, 2, 3, 1))
sketch3.addConstraint(Sketcher.Constraint("Coincident", 3, 2, 4, 1))
sketch3.addConstraint(Sketcher.Constraint("Coincident", 4, 2, 1, 1))
sketch3.addConstraint(Sketcher.Constraint("Coincident", 5, 2, 6, 1))
sketch3.addConstraint(Sketcher.Constraint("Coincident", 6, 2, 7, 1))
sketch3.addConstraint(Sketcher.Constraint("Coincident", 7, 2, 8, 1))
sketch3.addConstraint(Sketcher.Constraint("Coincident", 8, 2, 5, 1))
sketch3.addConstraint(Sketcher.Constraint("Vertical", 1))
sketch3.addConstraint(Sketcher.Constraint("Horizontal", 2))
sketch3.addConstraint(Sketcher.Constraint("Vertical", 3))
sketch3.addConstraint(Sketcher.Constraint("Horizontal", 4))
sketch3.addConstraint(Sketcher.Constraint("Vertical", 5))
sketch3.addConstraint(Sketcher.Constraint("Horizontal", 6))
sketch3.addConstraint(Sketcher.Constraint("Vertical", 7))
sketch3.addConstraint(Sketcher.Constraint("Horizontal", 8))
sketch3.addConstraint(Sketcher.Constraint("PointOnObject", 0, 3, -1))
sketch3.addConstraint(Sketcher.Constraint("Horizontal", 2, 2, 5, 2))
sketch3.addConstraint(Sketcher.Constraint("Horizontal", 4, 2, 7, 2))
sketch3.addConstraint(Sketcher.Constraint("Equal", 4, 6))
sketch3.addConstraint(Sketcher.Constraint("Diameter", 0, 12.0))
sketch3.addConstraint(Sketcher.Constraint("DistanceX", 2, 1, 2, 2, 4.0))
sketch3.addConstraint(Sketcher.Constraint("DistanceY", 1, 2, 1, 1, 10.0))
sketch3.addConstraint(Sketcher.Constraint("DistanceX", 0, 3, -1, 1, 115.0))
sketch3.addConstraint(Sketcher.Constraint("DistanceX", -1, 1, 1, 2, 160.0))
sketch3.addConstraint(Sketcher.Constraint("DistanceY", 1, 2, -1, 1, 5.0))
sketch3.addConstraint(Sketcher.Constraint("DistanceX", -1, 1, 5, 2, 62.0))
pocket2 = body.newObject("PartDesign::Pocket", "Pocket001")
pocket2.Profile = sketch3
pocket2.Length = 10

doc.recompute()
